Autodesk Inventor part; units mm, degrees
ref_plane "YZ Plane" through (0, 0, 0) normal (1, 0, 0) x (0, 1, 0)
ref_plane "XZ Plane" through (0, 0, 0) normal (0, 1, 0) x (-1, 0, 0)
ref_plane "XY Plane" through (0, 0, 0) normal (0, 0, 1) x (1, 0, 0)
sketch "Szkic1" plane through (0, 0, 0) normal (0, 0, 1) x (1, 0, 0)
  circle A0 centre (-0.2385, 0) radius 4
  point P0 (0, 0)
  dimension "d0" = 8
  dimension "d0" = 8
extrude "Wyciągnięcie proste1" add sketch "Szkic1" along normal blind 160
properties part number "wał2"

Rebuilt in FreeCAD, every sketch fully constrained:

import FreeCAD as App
import Part
import Sketcher

V = App.Vector

doc = App.newDocument("Part")
params = doc.addObject("Spreadsheet::Sheet", "Params")
for row, (alias, value) in enumerate([
    ("sketch1_diameter", "8 mm"),
    ("pad1_length", "160 mm"),
], start=1):
    params.set(f"A{row}", alias)
    params.set(f"B{row}", "=" + value)
    params.setAlias(f"B{row}", alias)

body = doc.addObject("PartDesign::Body", "Body")

sketch1 = body.newObject("Sketcher::SketchObject", "Sketch")
sketch1.AttachmentSupport = (doc.getObject("XY_Plane"), [""])
sketch1.MapMode = "FlatFace"
sketch1.addGeometry(Part.Circle(V(-0.2, 0, 0), V(0, 0, 1), 4), False)
sketch1.addConstraint([
    Sketcher.Constraint("PointOnObject", 0, 3, -1),
    Sketcher.Constraint("Diameter", 0, 8.0),
    Sketcher.Constraint("DistanceX", 0, 3, -1, 1, 0.2385),
])
sketch1.setExpression("Constraints[1]", "Params.sketch1_diameter")
pad1 = body.newObject("PartDesign::Pad", "Pad")
pad1.Profile = sketch1
pad1.setExpression("Length", "Params.pad1_length")

doc.recompute()
